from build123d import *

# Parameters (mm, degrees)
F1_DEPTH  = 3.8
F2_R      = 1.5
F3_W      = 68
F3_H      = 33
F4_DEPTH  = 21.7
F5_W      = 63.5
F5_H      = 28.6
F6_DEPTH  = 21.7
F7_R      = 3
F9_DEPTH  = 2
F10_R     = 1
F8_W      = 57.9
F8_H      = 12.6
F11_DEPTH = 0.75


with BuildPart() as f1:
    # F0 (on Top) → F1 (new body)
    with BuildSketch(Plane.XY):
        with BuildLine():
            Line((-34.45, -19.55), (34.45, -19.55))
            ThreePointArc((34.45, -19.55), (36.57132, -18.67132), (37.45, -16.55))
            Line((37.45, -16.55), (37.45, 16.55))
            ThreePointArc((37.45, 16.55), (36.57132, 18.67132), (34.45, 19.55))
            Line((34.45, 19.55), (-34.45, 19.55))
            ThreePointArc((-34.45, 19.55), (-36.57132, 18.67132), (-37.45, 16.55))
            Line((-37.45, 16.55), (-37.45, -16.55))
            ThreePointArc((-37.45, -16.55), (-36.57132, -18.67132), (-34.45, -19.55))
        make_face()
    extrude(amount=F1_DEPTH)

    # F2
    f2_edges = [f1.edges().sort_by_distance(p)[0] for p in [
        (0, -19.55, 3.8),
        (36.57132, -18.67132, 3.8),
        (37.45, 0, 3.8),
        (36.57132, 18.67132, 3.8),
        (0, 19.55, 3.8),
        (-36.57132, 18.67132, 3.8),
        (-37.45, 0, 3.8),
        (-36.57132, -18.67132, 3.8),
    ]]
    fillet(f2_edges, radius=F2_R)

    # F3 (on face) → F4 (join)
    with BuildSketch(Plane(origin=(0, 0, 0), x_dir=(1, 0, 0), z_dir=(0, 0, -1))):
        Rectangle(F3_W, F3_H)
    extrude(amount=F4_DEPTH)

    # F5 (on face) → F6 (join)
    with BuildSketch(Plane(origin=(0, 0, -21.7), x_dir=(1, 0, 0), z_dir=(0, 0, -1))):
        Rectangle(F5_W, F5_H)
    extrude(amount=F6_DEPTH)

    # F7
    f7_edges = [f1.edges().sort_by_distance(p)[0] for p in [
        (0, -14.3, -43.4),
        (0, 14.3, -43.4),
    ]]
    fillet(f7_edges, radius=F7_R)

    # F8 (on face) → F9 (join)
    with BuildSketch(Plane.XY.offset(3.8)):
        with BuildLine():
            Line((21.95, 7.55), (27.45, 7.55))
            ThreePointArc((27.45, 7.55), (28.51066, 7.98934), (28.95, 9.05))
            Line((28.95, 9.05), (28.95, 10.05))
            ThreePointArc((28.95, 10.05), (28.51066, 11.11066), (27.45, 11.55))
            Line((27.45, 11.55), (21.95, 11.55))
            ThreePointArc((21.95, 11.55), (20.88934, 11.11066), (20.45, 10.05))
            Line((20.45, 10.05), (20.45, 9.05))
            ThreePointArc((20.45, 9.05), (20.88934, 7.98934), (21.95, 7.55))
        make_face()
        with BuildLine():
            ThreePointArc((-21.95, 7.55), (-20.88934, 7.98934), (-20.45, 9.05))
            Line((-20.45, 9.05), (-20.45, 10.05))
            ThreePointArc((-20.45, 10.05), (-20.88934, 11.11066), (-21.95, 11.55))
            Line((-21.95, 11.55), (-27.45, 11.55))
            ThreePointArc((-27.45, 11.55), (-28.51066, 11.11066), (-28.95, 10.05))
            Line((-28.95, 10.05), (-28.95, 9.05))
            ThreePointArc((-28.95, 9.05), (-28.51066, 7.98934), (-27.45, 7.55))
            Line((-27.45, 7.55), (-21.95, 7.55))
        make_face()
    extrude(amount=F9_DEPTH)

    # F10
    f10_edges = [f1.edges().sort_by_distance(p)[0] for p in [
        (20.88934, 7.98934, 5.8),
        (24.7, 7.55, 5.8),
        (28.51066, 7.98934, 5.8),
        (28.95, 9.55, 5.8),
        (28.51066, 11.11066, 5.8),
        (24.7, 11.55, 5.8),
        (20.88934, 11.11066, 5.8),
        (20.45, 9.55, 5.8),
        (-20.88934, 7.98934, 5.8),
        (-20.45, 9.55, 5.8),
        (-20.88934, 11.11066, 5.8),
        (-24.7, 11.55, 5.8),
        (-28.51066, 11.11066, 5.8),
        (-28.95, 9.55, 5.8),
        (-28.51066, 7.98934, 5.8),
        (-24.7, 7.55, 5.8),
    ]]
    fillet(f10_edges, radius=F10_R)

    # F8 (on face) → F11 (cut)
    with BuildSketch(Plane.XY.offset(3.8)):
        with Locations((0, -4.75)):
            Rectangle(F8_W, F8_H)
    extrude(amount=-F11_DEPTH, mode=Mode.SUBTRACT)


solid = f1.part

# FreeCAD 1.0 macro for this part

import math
import FreeCAD as App
import Part
import Sketcher
from FreeCAD import Vector
Q = App.Units.Quantity


def edges_at(feature, points):
    """Names of the edges that pass closest to the given points."""
    edges = feature.Shape.Edges
    near = lambda p: min(range(len(edges)), key=lambda i: edges[i].distToShape(Part.Vertex(*p))[0])
    return sorted({f"Edge{near(p) + 1}" for p in points})


def add_polygon(sketch, points):
    """Adds a closed chain of lines whose ends are joined by coincident constraints."""
    first, n = sketch.GeometryCount, len(points)
    for a, b in zip(points, points[1:] + points[:1]):
        sketch.addGeometry(Part.LineSegment(App.Vector(*a, 0), App.Vector(*b, 0)), False)
    for i in range(n):
        sketch.addConstraint(Sketcher.Constraint("Coincident", first + i, 2, first + (i + 1) % n, 1))

doc = App.newDocument("Part")
body = doc.addObject("PartDesign::Body", "Body")

sketch1 = body.newObject("Sketcher::SketchObject", "Sketch")
sketch1.AttachmentSupport = (doc.getObject("XY_Plane"), [""])
sketch1.MapMode = "FlatFace"
sketch1.addGeometry([
    Part.LineSegment(Vector(-34.45, -19.55, 0), Vector(34.45, -19.55, 0)),
    Part.ArcOfCircle(Part.Circle(Vector(34.449999, -16.549999, 0), Vector(0, 0, 1), 3.000001), math.radians(-89.999978), math.radians(-0.000022)),
    Part.LineSegment(Vector(37.45, -16.55, 0), Vector(37.45, 16.55, 0)),
    Part.ArcOfCircle(Part.Circle(Vector(34.449999, 16.549999, 0), Vector(0, 0, 1), 3.000001), math.radians(0.000022), math.radians(89.999978)),
    Part.LineSegment(Vector(34.45, 19.55, 0), Vector(-34.45, 19.55, 0)),
    Part.ArcOfCircle(Part.Circle(Vector(-34.449999, 16.549999, 0), Vector(0, 0, 1), 3.000001), math.radians(90.000022), math.radians(179.999978)),
    Part.LineSegment(Vector(-37.45, 16.55, 0), Vector(-37.45, -16.55, 0)),
    Part.ArcOfCircle(Part.Circle(Vector(-34.449999, -16.549999, 0), Vector(0, 0, 1), 3.000001), math.radians(-179.999978), math.radians(-90.000022)),
], False)
sketch1.addConstraint([
    Sketcher.Constraint("Tangent", 0, 2, 1, 1),
    Sketcher.Constraint("Tangent", 1, 2, 2, 1),
    Sketcher.Constraint("Tangent", 2, 2, 3, 1),
    Sketcher.Constraint("Tangent", 3, 2, 4, 1),
    Sketcher.Constraint("Tangent", 4, 2, 5, 1),
    Sketcher.Constraint("Tangent", 5, 2, 6, 1),
    Sketcher.Constraint("Tangent", 6, 2, 7, 1),
    Sketcher.Constraint("Tangent", 7, 2, 0, 1),
    Sketcher.Constraint("Horizontal", 0),
    Sketcher.Constraint("Vertical", 2),
    Sketcher.Constraint("Horizontal", 4),
    Sketcher.Constraint("Vertical", 6),
    Sketcher.Constraint("Equal", 1, 3),
    Sketcher.Constraint("Equal", 3, 5),
    Sketcher.Constraint("Equal", 5, 7),
    Sketcher.Constraint("Symmetric", 1, 3, 5, 3, -1, 1),
    Sketcher.Constraint("Radius", 1, Q("3.000001 mm")),
    Sketcher.Constraint("DistanceX", 0, 1, 0, 2, Q("68.9 mm")),
    Sketcher.Constraint("DistanceY", 2, 1, 2, 2, Q("33.1 mm")),
])
pad1 = body.newObject("PartDesign::Pad", "Pad")
pad1.Profile = sketch1
pad1.Length = 3.8
doc.recompute()

fillet = body.newObject("PartDesign::Fillet", "Fillet")
fillet.Base = (pad1, edges_at(pad1, [
    (0, -19.55, 3.8),
    (36.571, -18.671, 3.8),
    (37.45, 0, 3.8),
    (36.571, 18.671, 3.8),
    (0, 19.55, 3.8),
    (-36.571, 18.671, 3.8),
    (-37.45, 0, 3.8),
    (-36.571, -18.671, 3.8),
]))
fillet.Radius = 1.5

sketch2 = body.newObject("Sketcher::SketchObject", "Sketch001")
sketch2.AttachmentSupport = (doc.getObject("XY_Plane"), [""])
sketch2.MapMode = "FlatFace"
add_polygon(sketch2, [(-34, -16.5), (-34, 16.5), (34, 16.5), (34, -16.5)])
sketch2.addConstraint([
    Sketcher.Constraint("Vertical", 0),
    Sketcher.Constraint("Horizontal", 1),
    Sketcher.Constraint("Vertical", 2),
    Sketcher.Constraint("Horizontal", 3),
    Sketcher.Constraint("Symmetric", 0, 2, 2, 2, -1, 1),
    Sketcher.Constraint("DistanceX", 1, 1, 1, 2, Q("68 mm")),
    Sketcher.Constraint("DistanceY", 0, 1, 0, 2, Q("33 mm")),
])
pad2 = body.newObject("PartDesign::Pad", "Pad001")
pad2.Profile = sketch2
pad2.Length = 21.7
pad2.Reversed = True

sketch3 = body.newObject("Sketcher::SketchObject", "Sketch002")
sketch3.AttachmentSupport = (doc.getObject("XY_Plane"), [""])
sketch3.MapMode = "FlatFace"
sketch3.AttachmentOffset = App.Placement(Vector(0, 0, -21.7), App.Rotation())
add_polygon(sketch3, [(-31.75, -14.3), (-31.75, 14.3), (31.75, 14.3), (31.75, -14.3)])
sketch3.addConstraint([
    Sketcher.Constraint("Vertical", 0),
    Sketcher.Constraint("Horizontal", 1),
    Sketcher.Constraint("Vertical", 2),
    Sketcher.Constraint("Horizontal", 3),
    Sketcher.Constraint("Symmetric", 0, 2, 2, 2, -1, 1),
    Sketcher.Constraint("DistanceX", 1, 1, 1, 2, Q("63.5 mm")),
    Sketcher.Constraint("DistanceY", 0, 1, 0, 2, Q("28.6 mm")),
])
pad3 = body.newObject("PartDesign::Pad", "Pad002")
pad3.Profile = sketch3
pad3.Length = 21.7
pad3.Reversed = True
doc.recompute()

fillet2 = body.newObject("PartDesign::Fillet", "Fillet001")
fillet2.Base = (pad3, edges_at(pad3, [(0, -14.3, -43.4), (0, 14.3, -43.4)]))
fillet2.Radius = 3

sketch4 = body.newObject("Sketcher::SketchObject", "Sketch003")
sketch4.AttachmentSupport = (doc.getObject("XY_Plane"), [""])
sketch4.MapMode = "FlatFace"
sketch4.AttachmentOffset = App.Placement(Vector(0, 0, 3.8), App.Rotation())
sketch4.addGeometry([
    Part.LineSegment(Vector(21.95, 7.55, 0), Vector(27.45, 7.55, 0)),
    Part.ArcOfCircle(Part.Circle(Vector(27.449999, 9.050001, 0), Vector(0, 0, 1), 1.500001), math.radians(-89.999978), math.radians(-0.000022)),
    Part.LineSegment(Vector(28.95, 9.05, 0), Vector(28.95, 10.05, 0)),
    Part.ArcOfCircle(Part.Circle(Vector(27.449999, 10.049999, 0), Vector(0, 0, 1), 1.500001), math.radians(0.000022), math.radians(89.999978)),
    Part.LineSegment(Vector(27.45, 11.55, 0), Vector(21.95, 11.55, 0)),
    Part.ArcOfCircle(Part.Circle(Vector(21.950001, 10.049999, 0), Vector(0, 0, 1), 1.500001), math.radians(90.000022), math.radians(179.999978)),
    Part.LineSegment(Vector(20.45, 10.05, 0), Vector(20.45, 9.05, 0)),
    Part.ArcOfCircle(Part.Circle(Vector(21.950001, 9.050001, 0), Vector(0, 0, 1), 1.500001), math.radians(-179.999978), math.radians(-90.000022)),
    Part.ArcOfCircle(Part.Circle(Vector(-21.950001, 9.050001, 0), Vector(0, 0, 1), 1.500001), math.radians(-89.999978), math.radians(-0.000022)),
    Part.LineSegment(Vector(-20.45, 9.05, 0), Vector(-20.45, 10.05, 0)),
    Part.ArcOfCircle(Part.Circle(Vector(-21.950001, 10.049999, 0), Vector(0, 0, 1), 1.500001), math.radians(0.000022), math.radians(89.999978)),
    Part.LineSegment(Vector(-21.95, 11.55, 0), Vector(-27.45, 11.55, 0)),
    Part.ArcOfCircle(Part.Circle(Vector(-27.449999, 10.049999, 0), Vector(0, 0, 1), 1.500001), math.radians(90.000022), math.radians(179.999978)),
    Part.LineSegment(Vector(-28.95, 10.05, 0), Vector(-28.95, 9.05, 0)),
    Part.ArcOfCircle(Part.Circle(Vector(-27.449999, 9.050001, 0), Vector(0, 0, 1), 1.500001), math.radians(-179.999978), math.radians(-90.000022)),
    Part.LineSegment(Vector(-27.45, 7.55, 0), Vector(-21.95, 7.55, 0)),
], False)
sketch4.addConstraint([
    Sketcher.Constraint("Tangent", 0, 2, 1, 1),
    Sketcher.Constraint("Tangent", 1, 2, 2, 1),
    Sketcher.Constraint("Tangent", 2, 2, 3, 1),
    Sketcher.Constraint("Tangent", 3, 2, 4, 1),
    Sketcher.Constraint("Tangent", 4, 2, 5, 1),
    Sketcher.Constraint("Tangent", 5, 2, 6, 1),
    Sketcher.Constraint("Tangent", 6, 2, 7, 1),
    Sketcher.Constraint("Tangent", 7, 2, 0, 1),
    Sketcher.Constraint("Tangent", 8, 2, 9, 1),
    Sketcher.Constraint("Tangent", 9, 2, 10, 1),
    Sketcher.Constraint("Tangent", 10, 2, 11, 1),
    Sketcher.Constraint("Tangent", 11, 2, 12, 1),
    Sketcher.Constraint("Tangent", 12, 2, 13, 1),
    Sketcher.Constraint("Tangent", 13, 2, 14, 1),
    Sketcher.Constraint("Tangent", 14, 2, 15, 1),
    Sketcher.Constraint("Tangent", 15, 2, 8, 1),
    Sketcher.Constraint("Horizontal", 0),
    Sketcher.Constraint("Vertical", 2),
    Sketcher.Constraint("Horizontal", 4),
    Sketcher.Constraint("Vertical", 6),
    Sketcher.Constraint("Vertical", 9),
    Sketcher.Constraint("Horizontal", 11),
    Sketcher.Constraint("Vertical", 13),
    Sketcher.Constraint("Horizontal", 15),
    Sketcher.Constraint("Equal", 1, 3),
    Sketcher.Constraint("Equal", 3, 5),
    Sketcher.Constraint("Equal", 5, 7),
    Sketcher.Constraint("Equal", 7, 8),
    Sketcher.Constraint("Equal", 8, 10),
    Sketcher.Constraint("Equal", 10, 12),
    Sketcher.Constraint("Equal", 12, 14),
    Sketcher.Constraint("Symmetric", 7, 3, 8, 3, -2),
    Sketcher.Constraint("Symmetric", 3, 3, 12, 3, -2),
    Sketcher.Constraint("Radius", 1, Q("1.500001 mm")),
    Sketcher.Constraint("DistanceY", 2, 1, 2, 2, Q("1 mm")),
    Sketcher.Constraint("DistanceX", 0, 1, 0, 2, Q("5.5 mm")),
    Sketcher.Constraint("DistanceX", 8, 3, 7, 3, Q("43.900001 mm")),
    Sketcher.Constraint("DistanceY", -1, 1, 1, 3, Q("9.050001 mm")),
])
pad4 = body.newObject("PartDesign::Pad", "Pad003")
pad4.Profile = sketch4
pad4.Length = 2
doc.recompute()

fillet3 = body.newObject("PartDesign::Fillet", "Fillet002")
fillet3.Base = (pad4, edges_at(pad4, [
    (20.889, 7.989, 5.8),
    (24.7, 7.55, 5.8),
    (28.511, 7.989, 5.8),
    (28.95, 9.55, 5.8),
    (28.511, 11.111, 5.8),
    (24.7, 11.55, 5.8),
    (20.889, 11.111, 5.8),
    (20.45, 9.55, 5.8),
    (-20.889, 7.989, 5.8),
    (-20.45, 9.55, 5.8),
    (-20.889, 11.111, 5.8),
    (-24.7, 11.55, 5.8),
    (-28.511, 11.111, 5.8),
    (-28.95, 9.55, 5.8),
    (-28.511, 7.989, 5.8),
    (-24.7, 7.55, 5.8),
]))
fillet3.Radius = 1

sketch5 = body.newObject("Sketcher::SketchObject", "Sketch004")
sketch5.AttachmentSupport = (doc.getObject("XY_Plane"), [""])
sketch5.MapMode = "FlatFace"
sketch5.AttachmentOffset = App.Placement(Vector(0, 0, 3.8), App.Rotation())
add_polygon(sketch5, [(-28.95, 1.55), (-28.95, -11.05), (28.95, -11.05), (28.95, 1.55)])
sketch5.addConstraint([
    Sketcher.Constraint("Vertical", 0),
    Sketcher.Constraint("Horizontal", 1),
    Sketcher.Constraint("Vertical", 2),
    Sketcher.Constraint("Horizontal", 3),
    Sketcher.Constraint("DistanceX", 1, 1, 1, 2, Q("57.9 mm")),
    Sketcher.Constraint("DistanceY", 0, 2, 0, 1, Q("12.6 mm")),
    Sketcher.Constraint("DistanceX", 0, 2, -1, 1, Q("28.95 mm")),
    Sketcher.Constraint("DistanceY", 0, 2, -1, 1, Q("11.05 mm")),
])
pocket1 = body.newObject("PartDesign::Pocket", "Pocket")
pocket1.Profile = sketch5
pocket1.Length = 0.75

doc.recompute()
